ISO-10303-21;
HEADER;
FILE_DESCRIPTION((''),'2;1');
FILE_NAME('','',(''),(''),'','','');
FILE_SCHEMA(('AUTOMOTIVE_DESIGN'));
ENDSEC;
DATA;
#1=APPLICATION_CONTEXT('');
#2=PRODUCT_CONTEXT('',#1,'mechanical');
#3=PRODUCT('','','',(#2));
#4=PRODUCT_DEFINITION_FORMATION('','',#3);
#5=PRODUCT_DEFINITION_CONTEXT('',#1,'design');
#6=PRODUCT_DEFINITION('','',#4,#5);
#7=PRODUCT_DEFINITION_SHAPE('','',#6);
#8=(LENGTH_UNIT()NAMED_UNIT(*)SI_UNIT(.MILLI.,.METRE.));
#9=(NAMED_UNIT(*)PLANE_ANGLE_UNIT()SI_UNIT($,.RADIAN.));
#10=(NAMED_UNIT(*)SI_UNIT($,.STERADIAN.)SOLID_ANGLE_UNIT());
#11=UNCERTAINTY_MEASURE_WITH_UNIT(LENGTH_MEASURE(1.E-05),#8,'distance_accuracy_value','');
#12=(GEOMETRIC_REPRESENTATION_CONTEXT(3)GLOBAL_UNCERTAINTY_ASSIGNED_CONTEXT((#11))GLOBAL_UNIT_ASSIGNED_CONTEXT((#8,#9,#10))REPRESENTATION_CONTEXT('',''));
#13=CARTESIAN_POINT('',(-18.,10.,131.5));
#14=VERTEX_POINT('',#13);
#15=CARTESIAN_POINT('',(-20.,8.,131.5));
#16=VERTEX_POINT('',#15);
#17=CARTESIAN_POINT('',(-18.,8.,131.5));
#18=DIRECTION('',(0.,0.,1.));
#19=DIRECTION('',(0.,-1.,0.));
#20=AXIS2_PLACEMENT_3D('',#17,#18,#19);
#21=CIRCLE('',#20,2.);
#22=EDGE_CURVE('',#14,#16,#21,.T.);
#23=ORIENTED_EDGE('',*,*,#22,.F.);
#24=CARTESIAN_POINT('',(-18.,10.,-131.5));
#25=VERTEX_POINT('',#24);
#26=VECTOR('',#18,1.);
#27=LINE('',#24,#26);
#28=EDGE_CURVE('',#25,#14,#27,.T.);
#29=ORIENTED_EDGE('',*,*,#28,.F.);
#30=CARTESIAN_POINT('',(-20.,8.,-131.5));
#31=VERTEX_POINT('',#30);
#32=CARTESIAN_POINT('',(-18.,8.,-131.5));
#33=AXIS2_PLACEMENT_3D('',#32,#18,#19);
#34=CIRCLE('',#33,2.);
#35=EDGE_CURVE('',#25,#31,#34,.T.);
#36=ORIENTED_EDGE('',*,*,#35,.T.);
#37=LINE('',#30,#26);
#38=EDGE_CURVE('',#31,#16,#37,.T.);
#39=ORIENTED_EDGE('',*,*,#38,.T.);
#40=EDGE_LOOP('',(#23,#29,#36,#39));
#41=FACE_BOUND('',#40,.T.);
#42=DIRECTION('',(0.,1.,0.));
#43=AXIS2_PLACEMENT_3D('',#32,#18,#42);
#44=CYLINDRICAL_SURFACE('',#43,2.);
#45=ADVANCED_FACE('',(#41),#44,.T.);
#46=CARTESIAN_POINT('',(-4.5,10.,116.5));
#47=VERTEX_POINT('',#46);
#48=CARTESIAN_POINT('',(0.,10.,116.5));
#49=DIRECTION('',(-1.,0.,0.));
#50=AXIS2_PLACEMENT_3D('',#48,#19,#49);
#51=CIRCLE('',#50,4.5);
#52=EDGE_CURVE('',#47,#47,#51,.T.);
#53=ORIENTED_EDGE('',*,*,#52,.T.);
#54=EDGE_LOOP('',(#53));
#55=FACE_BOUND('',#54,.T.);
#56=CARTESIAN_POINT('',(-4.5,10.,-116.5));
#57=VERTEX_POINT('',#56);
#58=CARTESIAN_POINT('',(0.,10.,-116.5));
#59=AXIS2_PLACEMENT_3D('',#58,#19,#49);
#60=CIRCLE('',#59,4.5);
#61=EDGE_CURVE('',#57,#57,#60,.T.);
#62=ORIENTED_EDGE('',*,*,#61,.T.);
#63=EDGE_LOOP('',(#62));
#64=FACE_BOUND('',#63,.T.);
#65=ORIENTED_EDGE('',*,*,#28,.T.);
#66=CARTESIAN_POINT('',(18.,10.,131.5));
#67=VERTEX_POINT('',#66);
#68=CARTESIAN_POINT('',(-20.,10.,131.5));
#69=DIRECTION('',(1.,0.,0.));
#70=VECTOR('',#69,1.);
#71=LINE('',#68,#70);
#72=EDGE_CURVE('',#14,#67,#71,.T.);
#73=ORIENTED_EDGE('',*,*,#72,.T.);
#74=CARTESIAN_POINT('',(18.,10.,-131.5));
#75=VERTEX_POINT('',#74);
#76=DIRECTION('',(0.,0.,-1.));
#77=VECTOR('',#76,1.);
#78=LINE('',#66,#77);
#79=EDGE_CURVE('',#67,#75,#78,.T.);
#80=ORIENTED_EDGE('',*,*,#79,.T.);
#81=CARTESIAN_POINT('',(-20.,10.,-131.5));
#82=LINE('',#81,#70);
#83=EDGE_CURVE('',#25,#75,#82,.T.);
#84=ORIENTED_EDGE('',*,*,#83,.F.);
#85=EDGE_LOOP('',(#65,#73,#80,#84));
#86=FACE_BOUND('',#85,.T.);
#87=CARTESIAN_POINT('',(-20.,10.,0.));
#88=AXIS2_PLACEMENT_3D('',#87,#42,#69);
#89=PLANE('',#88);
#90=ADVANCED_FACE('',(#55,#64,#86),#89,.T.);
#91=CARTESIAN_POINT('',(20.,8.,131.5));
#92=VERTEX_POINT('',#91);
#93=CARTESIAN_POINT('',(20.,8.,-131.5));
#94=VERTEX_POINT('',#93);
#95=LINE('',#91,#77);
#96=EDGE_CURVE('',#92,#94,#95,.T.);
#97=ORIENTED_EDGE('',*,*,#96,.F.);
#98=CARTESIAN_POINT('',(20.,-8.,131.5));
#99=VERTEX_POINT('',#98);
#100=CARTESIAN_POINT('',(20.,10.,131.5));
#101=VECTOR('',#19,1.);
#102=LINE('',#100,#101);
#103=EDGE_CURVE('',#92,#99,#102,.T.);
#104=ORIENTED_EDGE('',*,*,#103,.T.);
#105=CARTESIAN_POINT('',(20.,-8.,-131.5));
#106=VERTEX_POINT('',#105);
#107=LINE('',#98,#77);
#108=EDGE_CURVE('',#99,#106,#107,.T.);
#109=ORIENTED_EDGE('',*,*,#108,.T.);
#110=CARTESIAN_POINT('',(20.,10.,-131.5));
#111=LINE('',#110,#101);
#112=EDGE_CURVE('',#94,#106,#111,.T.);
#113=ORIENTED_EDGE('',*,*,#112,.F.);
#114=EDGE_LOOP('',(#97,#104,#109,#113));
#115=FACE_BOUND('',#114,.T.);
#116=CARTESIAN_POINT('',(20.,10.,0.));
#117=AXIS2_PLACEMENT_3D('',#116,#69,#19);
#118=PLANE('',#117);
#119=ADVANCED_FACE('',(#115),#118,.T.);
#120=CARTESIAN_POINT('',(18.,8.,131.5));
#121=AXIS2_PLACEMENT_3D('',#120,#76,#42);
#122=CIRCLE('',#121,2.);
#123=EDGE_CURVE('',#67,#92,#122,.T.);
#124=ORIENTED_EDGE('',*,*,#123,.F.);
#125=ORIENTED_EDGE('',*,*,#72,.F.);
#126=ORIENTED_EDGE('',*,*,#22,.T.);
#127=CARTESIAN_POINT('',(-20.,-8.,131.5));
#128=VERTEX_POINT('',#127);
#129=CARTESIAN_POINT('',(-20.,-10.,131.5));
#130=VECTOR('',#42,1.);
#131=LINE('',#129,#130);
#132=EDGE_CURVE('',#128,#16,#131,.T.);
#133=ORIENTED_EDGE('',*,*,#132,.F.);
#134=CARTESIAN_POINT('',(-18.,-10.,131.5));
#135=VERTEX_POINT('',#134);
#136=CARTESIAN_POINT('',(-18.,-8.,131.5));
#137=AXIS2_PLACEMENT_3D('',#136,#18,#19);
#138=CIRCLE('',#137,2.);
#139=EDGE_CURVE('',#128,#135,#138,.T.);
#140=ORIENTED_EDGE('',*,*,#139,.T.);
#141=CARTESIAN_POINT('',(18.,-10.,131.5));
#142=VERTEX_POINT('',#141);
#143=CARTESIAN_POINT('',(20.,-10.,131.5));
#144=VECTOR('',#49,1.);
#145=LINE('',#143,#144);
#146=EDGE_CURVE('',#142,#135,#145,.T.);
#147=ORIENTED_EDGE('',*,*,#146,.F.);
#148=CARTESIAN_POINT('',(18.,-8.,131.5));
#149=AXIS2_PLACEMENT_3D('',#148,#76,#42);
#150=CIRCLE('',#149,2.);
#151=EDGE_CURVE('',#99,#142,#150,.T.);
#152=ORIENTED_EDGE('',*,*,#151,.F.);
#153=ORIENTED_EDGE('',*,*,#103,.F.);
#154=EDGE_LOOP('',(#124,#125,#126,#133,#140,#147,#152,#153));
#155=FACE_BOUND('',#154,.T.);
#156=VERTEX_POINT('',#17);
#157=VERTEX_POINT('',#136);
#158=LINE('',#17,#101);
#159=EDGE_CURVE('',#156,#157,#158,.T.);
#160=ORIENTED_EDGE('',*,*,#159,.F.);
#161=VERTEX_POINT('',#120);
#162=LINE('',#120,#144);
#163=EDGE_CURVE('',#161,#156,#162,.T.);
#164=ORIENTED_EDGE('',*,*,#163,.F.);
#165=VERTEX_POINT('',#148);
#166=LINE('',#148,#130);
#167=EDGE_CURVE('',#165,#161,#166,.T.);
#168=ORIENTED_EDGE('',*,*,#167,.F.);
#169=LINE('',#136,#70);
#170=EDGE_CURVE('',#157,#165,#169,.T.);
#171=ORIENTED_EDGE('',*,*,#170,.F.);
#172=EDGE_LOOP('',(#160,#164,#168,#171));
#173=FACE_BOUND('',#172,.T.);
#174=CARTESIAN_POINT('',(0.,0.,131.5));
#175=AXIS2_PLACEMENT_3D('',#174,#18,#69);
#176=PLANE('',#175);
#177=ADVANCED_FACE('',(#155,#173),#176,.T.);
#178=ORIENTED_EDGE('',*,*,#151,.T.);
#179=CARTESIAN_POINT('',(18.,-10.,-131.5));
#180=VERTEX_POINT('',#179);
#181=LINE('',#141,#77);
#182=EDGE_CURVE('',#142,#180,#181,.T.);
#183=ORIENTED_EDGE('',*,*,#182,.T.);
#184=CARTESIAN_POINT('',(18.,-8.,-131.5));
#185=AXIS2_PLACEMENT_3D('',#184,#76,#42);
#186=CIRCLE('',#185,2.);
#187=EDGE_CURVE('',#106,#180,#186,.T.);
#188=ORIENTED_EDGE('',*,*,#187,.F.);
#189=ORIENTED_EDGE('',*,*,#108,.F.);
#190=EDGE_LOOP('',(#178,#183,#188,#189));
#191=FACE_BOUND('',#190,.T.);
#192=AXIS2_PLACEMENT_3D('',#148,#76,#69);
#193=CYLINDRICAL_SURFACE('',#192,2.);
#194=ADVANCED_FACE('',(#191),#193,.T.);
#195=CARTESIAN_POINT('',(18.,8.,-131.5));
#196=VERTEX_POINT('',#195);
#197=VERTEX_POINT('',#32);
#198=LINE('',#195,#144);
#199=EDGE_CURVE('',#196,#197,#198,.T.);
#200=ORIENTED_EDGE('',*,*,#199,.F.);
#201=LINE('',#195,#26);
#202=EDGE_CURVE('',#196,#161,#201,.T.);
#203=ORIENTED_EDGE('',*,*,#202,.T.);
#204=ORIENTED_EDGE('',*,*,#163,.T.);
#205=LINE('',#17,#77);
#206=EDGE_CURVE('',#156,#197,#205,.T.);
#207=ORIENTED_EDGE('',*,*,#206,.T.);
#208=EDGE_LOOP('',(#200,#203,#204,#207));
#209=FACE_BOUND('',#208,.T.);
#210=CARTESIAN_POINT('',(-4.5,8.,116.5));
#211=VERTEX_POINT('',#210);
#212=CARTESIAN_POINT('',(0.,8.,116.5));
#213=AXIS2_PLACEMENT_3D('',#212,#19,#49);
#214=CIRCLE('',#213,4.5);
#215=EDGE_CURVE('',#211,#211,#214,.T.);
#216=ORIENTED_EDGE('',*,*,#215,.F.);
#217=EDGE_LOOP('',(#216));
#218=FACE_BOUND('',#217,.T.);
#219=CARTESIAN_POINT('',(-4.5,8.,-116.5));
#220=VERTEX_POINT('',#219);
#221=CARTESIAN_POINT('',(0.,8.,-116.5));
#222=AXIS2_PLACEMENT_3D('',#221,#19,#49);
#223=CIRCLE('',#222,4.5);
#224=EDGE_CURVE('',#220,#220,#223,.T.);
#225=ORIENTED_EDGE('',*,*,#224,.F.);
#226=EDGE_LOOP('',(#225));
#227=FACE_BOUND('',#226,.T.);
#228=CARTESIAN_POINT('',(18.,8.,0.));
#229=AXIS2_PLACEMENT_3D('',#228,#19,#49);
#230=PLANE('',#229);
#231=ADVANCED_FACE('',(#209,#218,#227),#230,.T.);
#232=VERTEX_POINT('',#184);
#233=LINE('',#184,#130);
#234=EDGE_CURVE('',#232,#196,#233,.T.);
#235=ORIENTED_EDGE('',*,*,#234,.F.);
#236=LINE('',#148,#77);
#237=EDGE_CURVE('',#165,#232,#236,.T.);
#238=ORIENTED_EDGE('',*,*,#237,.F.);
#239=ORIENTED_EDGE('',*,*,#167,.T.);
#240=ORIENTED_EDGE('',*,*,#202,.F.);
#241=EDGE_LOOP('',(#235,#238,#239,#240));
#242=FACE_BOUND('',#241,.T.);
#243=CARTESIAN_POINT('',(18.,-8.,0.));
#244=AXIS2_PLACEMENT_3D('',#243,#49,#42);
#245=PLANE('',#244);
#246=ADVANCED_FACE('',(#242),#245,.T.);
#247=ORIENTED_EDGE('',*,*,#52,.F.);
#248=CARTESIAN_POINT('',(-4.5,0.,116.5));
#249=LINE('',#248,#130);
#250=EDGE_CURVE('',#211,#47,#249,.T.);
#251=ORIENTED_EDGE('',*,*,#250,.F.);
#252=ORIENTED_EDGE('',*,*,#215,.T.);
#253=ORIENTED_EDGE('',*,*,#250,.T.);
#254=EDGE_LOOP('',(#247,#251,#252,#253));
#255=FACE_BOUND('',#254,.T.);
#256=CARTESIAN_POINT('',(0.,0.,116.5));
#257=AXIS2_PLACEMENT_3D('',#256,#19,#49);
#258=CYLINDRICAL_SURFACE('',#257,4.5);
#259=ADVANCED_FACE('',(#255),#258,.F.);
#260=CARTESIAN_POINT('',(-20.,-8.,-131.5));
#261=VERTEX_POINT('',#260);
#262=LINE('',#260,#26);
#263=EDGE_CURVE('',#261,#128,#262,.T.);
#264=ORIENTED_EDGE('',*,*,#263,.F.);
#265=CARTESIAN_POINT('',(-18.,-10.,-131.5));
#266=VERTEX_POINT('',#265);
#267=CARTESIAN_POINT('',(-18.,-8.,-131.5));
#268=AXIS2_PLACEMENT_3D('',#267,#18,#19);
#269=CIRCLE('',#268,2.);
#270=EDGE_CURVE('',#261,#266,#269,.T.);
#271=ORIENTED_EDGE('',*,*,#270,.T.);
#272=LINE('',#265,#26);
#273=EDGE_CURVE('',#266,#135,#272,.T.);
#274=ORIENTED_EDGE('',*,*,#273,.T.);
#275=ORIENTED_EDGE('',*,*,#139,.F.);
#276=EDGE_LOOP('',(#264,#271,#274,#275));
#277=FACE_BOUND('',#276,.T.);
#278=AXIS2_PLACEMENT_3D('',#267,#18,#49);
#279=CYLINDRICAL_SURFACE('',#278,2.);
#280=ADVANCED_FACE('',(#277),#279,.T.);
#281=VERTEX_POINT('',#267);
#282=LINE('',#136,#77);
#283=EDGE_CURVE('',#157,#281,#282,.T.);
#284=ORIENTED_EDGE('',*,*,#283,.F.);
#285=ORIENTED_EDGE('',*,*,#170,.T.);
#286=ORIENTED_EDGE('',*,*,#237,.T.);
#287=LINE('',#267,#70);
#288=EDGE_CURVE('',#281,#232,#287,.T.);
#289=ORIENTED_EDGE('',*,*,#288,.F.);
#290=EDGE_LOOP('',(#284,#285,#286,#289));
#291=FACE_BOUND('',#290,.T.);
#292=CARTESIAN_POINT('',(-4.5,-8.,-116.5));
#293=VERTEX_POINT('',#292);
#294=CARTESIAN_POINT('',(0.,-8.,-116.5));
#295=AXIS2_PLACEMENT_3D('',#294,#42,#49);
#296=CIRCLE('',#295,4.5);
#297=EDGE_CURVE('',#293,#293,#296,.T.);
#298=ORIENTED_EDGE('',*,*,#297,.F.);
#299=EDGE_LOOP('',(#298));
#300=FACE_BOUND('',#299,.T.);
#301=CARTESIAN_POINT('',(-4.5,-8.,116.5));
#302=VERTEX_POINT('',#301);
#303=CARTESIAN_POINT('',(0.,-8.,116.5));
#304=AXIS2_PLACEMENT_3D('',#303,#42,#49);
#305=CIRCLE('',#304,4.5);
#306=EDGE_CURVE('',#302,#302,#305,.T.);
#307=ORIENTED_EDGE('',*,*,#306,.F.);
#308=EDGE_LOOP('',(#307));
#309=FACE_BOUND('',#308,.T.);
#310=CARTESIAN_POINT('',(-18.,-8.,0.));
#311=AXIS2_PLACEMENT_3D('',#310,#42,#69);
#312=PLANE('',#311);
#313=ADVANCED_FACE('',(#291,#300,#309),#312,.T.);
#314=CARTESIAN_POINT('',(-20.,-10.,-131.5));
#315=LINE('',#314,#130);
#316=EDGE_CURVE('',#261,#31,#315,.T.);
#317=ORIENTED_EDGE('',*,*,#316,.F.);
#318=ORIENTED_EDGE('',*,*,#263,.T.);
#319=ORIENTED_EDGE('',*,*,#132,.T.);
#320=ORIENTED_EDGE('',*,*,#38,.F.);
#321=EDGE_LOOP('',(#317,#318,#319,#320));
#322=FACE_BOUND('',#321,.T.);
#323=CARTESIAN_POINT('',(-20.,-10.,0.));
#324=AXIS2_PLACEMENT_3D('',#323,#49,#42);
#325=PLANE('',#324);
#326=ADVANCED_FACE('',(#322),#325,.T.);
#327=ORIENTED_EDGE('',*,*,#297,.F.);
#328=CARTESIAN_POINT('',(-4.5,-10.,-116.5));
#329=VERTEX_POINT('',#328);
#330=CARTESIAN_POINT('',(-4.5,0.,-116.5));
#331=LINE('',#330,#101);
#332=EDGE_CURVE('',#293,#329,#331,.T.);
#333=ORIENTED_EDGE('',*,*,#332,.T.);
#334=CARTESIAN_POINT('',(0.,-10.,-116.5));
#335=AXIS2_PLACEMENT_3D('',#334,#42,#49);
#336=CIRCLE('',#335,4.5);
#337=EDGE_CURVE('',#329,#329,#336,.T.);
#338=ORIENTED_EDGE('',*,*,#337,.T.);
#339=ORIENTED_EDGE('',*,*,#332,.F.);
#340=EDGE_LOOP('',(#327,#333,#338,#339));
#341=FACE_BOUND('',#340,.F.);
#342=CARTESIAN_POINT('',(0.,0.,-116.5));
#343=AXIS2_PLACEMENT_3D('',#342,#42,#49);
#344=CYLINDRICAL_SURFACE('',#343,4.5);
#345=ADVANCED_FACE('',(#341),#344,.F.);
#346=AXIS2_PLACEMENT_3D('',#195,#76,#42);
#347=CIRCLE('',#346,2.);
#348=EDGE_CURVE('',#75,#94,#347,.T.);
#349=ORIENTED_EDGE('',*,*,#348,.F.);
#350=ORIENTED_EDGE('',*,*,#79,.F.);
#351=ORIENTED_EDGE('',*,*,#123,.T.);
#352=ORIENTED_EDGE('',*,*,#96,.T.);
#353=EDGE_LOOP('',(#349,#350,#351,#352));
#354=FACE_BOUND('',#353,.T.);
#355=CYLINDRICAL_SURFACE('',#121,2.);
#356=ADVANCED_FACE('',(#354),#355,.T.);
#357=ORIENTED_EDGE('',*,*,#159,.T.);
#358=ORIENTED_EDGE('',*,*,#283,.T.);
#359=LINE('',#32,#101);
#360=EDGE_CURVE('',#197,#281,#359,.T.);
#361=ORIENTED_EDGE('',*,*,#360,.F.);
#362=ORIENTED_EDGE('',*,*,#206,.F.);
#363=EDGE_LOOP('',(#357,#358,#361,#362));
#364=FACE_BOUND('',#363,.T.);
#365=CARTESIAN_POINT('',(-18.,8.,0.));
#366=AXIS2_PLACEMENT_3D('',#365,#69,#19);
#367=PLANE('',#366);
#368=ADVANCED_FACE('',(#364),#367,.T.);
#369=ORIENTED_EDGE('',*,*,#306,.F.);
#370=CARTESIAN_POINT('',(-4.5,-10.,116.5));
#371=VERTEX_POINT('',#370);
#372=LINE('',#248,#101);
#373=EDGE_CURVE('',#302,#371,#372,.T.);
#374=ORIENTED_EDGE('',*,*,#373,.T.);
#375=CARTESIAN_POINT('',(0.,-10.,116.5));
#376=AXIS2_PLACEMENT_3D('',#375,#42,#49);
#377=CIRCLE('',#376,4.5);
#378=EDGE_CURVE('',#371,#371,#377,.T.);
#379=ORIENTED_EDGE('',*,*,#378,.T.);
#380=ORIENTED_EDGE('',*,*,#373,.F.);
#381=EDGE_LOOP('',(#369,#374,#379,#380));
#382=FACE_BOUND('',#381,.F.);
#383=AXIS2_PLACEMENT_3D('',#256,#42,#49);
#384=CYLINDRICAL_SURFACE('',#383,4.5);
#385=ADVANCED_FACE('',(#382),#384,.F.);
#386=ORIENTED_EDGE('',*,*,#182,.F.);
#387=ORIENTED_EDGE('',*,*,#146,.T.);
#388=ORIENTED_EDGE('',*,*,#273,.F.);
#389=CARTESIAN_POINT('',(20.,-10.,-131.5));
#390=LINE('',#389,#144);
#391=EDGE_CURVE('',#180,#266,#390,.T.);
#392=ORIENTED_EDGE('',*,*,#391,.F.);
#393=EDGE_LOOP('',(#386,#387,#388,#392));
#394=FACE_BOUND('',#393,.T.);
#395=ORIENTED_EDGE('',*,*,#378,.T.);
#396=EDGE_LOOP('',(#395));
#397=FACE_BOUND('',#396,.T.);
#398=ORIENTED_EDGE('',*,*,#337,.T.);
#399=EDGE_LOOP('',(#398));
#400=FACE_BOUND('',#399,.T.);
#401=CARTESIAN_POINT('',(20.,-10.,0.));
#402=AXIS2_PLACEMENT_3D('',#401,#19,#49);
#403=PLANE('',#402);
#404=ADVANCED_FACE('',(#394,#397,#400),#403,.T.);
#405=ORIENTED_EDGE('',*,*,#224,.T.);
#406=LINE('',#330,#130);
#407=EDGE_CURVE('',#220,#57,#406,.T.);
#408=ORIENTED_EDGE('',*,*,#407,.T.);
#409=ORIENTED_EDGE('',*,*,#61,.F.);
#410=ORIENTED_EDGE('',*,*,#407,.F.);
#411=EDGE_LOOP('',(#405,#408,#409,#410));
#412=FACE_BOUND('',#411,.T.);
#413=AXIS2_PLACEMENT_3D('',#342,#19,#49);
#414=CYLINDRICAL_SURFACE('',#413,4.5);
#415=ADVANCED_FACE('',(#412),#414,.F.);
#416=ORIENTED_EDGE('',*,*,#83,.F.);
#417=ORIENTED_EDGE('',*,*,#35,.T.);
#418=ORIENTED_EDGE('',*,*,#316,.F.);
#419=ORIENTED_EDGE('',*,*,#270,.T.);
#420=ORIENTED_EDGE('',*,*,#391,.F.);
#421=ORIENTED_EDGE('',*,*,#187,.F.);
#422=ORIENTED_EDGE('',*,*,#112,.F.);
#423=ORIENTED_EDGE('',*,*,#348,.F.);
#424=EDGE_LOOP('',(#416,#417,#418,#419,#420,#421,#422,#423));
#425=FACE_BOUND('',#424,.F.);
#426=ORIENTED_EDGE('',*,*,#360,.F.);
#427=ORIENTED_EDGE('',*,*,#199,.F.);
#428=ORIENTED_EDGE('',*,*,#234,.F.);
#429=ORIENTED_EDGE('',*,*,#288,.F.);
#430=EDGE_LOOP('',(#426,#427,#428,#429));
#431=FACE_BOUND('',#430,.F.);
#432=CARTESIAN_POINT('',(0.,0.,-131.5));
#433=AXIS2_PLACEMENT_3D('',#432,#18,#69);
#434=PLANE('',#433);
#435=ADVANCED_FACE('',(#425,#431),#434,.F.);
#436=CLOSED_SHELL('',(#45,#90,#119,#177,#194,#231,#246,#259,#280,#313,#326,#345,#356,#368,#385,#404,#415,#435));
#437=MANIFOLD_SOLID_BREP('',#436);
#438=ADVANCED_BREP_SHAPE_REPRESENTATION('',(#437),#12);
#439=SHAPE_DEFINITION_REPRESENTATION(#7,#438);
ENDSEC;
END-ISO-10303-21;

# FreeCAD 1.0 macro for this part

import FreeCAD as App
import Part
import Sketcher
from FreeCAD import Vector


def edges_at(feature, points):
    """Names of the edges that pass closest to the given points."""
    edges = feature.Shape.Edges
    near = lambda p: min(range(len(edges)), key=lambda i: edges[i].distToShape(Part.Vertex(*p))[0])
    return sorted({f"Edge{near(p) + 1}" for p in points})


def add_polygon(sketch, points):
    """Adds a closed chain of lines whose ends are joined by coincident constraints."""
    first, n = sketch.GeometryCount, len(points)
    for a, b in zip(points, points[1:] + points[:1]):
        sketch.addGeometry(Part.LineSegment(App.Vector(*a, 0), App.Vector(*b, 0)), False)
    for i in range(n):
        sketch.addConstraint(Sketcher.Constraint("Coincident", first + i, 2, first + (i + 1) % n, 1))

doc = App.newDocument("Part")
body = doc.addObject("PartDesign::Body", "Body")

# Sketch on XY plane
sketch1 = body.newObject("Sketcher::SketchObject", "Sketch")
sketch1.AttachmentSupport = (doc.getObject("XY_Plane"), [""])
sketch1.MapMode = "FlatFace"
add_polygon(sketch1, [(20, 10), (-20, 10), (-20, -10), (20, -10)])  # lines 0-3
add_polygon(sketch1, [(-18, 8), (18, 8), (18, -8), (-18, -8)])  # lines 4-7
sketch1.addConstraint(Sketcher.Constraint("Horizontal", 0))
sketch1.addConstraint(Sketcher.Constraint("Vertical", 1))
sketch1.addConstraint(Sketcher.Constraint("Horizontal", 2))
sketch1.addConstraint(Sketcher.Constraint("Vertical", 3))
sketch1.addConstraint(Sketcher.Constraint("Horizontal", 4))
sketch1.addConstraint(Sketcher.Constraint("Vertical", 5))
sketch1.addConstraint(Sketcher.Constraint("Horizontal", 6))
sketch1.addConstraint(Sketcher.Constraint("Vertical", 7))
sketch1.addConstraint(Sketcher.Constraint("Symmetric", 0, 2, 2, 2, -1, 1))
sketch1.addConstraint(Sketcher.Constraint("Symmetric", 4, 2, 6, 2, -1, 1))
sketch1.addConstraint(Sketcher.Constraint("DistanceX", 0, 2, 0, 1, 40.0))
sketch1.addConstraint(Sketcher.Constraint("DistanceY", 1, 2, 1, 1, 20.0))
sketch1.addConstraint(Sketcher.Constraint("DistanceX", 4, 2, 3, 2, 2.0))
sketch1.addConstraint(Sketcher.Constraint("DistanceY", 4, 2, 3, 2, 2.0))
pad1 = body.newObject("PartDesign::Pad", "Pad")
pad1.Profile = sketch1
pad1.Length = 263
pad1.Midplane = True
doc.recompute()

fillet = body.newObject("PartDesign::Fillet", "Fillet")
fillet.Base = (pad1, edges_at(pad1, [
    (-20, 10, 0),
    (-20, -10, 0),
    (20, -10, 0),
    (20, 10, 0),
]))
fillet.Radius = 2

# Sketch on XZ plane
sketch2 = body.newObject("Sketcher::SketchObject", "Sketch001")
sketch2.AttachmentSupport = (doc.getObject("XZ_Plane"), [""])
sketch2.MapMode = "FlatFace"
sketch2.addGeometry(Part.Circle(Vector(0, 116.5, 0), Vector(0, 0, 1), 4.5), False)
sketch2.addGeometry(Part.Circle(Vector(0, -116.5, 0), Vector(0, 0, 1), 4.5), False)
sketch2.addConstraint(Sketcher.Constraint("Equal", 0, 1))
sketch2.addConstraint(Sketcher.Constraint("Symmetric", 0, 3, 1, 3, -1, 1))
sketch2.addConstraint(Sketcher.Constraint("PointOnObject", 0, 3, -2))
sketch2.addConstraint(Sketcher.Constraint("Diameter", 0, 9.0))
sketch2.addConstraint(Sketcher.Constraint("DistanceY", 1, 3, 0, 3, 233.0))
pocket1 = body.newObject("PartDesign::Pocket", "Pocket")
pocket1.Profile = sketch2
pocket1.Type = "ThroughAll"
pocket1.Midplane = True

doc.recompute()
